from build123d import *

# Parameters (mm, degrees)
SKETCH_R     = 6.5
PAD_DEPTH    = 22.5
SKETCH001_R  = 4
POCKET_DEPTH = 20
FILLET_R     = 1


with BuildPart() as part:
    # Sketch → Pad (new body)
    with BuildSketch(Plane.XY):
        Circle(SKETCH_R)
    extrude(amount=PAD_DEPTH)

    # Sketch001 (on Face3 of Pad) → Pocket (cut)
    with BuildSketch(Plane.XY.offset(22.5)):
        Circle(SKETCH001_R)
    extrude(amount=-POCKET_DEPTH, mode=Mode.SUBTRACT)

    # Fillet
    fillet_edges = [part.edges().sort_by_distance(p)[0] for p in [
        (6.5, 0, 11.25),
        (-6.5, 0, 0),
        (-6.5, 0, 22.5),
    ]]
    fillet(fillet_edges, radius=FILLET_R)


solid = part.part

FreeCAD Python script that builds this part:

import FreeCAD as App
import Part
import Sketcher
Q = App.Units.Quantity


def edges_at(feature, points):
    """Names of the edges that pass closest to the given points."""
    edges = feature.Shape.Edges
    near = lambda p: min(range(len(edges)), key=lambda i: edges[i].distToShape(Part.Vertex(*p))[0])
    return sorted({f"Edge{near(p) + 1}" for p in points})

doc = App.newDocument("Part")
body = doc.addObject("PartDesign::Body", "Body")

# Sketch on XY plane
sketch1 = body.newObject("Sketcher::SketchObject", "Sketch")
sketch1.AttachmentSupport = (doc.getObject("XY_Plane"), [""])
sketch1.MapMode = "FlatFace"
sketch1.addGeometry(Part.Circle(App.Vector(0, 0, 0), App.Vector(0, 0, 1), 6), False)
sketch1.addConstraint([
    Sketcher.Constraint("Coincident", 0, 3, -1, 1),
    Sketcher.Constraint("Diameter", 0, Q("13 mm")),
])
pad1 = body.newObject("PartDesign::Pad", "Pad")
pad1.Profile = sketch1
pad1.Length = 22.5

# Sketch on XY plane
sketch2 = body.newObject("Sketcher::SketchObject", "Sketch001")
sketch2.AttachmentSupport = (doc.getObject("XY_Plane"), [""])
sketch2.MapMode = "FlatFace"
sketch2.AttachmentOffset = App.Placement(App.Vector(0, 0, 22.5), App.Rotation())
sketch2.addGeometry(Part.Circle(App.Vector(0, 0, 0), App.Vector(0, 0, 1), 4), False)
sketch2.addConstraint([
    Sketcher.Constraint("Coincident", 0, 3, -1, 1),
    Sketcher.Constraint("Diameter", 0, Q("8 mm")),
])
pocket1 = body.newObject("PartDesign::Pocket", "Pocket")
pocket1.Profile = sketch2
pocket1.Length = 20
doc.recompute()

fillet = body.newObject("PartDesign::Fillet", "Fillet")
fillet.Base = (pocket1, edges_at(pocket1, [(6.5, 0, 11.25), (-6.5, 0, 0), (-6.5, 0, 22.5)]))
fillet.Radius = 1

doc.recompute()
